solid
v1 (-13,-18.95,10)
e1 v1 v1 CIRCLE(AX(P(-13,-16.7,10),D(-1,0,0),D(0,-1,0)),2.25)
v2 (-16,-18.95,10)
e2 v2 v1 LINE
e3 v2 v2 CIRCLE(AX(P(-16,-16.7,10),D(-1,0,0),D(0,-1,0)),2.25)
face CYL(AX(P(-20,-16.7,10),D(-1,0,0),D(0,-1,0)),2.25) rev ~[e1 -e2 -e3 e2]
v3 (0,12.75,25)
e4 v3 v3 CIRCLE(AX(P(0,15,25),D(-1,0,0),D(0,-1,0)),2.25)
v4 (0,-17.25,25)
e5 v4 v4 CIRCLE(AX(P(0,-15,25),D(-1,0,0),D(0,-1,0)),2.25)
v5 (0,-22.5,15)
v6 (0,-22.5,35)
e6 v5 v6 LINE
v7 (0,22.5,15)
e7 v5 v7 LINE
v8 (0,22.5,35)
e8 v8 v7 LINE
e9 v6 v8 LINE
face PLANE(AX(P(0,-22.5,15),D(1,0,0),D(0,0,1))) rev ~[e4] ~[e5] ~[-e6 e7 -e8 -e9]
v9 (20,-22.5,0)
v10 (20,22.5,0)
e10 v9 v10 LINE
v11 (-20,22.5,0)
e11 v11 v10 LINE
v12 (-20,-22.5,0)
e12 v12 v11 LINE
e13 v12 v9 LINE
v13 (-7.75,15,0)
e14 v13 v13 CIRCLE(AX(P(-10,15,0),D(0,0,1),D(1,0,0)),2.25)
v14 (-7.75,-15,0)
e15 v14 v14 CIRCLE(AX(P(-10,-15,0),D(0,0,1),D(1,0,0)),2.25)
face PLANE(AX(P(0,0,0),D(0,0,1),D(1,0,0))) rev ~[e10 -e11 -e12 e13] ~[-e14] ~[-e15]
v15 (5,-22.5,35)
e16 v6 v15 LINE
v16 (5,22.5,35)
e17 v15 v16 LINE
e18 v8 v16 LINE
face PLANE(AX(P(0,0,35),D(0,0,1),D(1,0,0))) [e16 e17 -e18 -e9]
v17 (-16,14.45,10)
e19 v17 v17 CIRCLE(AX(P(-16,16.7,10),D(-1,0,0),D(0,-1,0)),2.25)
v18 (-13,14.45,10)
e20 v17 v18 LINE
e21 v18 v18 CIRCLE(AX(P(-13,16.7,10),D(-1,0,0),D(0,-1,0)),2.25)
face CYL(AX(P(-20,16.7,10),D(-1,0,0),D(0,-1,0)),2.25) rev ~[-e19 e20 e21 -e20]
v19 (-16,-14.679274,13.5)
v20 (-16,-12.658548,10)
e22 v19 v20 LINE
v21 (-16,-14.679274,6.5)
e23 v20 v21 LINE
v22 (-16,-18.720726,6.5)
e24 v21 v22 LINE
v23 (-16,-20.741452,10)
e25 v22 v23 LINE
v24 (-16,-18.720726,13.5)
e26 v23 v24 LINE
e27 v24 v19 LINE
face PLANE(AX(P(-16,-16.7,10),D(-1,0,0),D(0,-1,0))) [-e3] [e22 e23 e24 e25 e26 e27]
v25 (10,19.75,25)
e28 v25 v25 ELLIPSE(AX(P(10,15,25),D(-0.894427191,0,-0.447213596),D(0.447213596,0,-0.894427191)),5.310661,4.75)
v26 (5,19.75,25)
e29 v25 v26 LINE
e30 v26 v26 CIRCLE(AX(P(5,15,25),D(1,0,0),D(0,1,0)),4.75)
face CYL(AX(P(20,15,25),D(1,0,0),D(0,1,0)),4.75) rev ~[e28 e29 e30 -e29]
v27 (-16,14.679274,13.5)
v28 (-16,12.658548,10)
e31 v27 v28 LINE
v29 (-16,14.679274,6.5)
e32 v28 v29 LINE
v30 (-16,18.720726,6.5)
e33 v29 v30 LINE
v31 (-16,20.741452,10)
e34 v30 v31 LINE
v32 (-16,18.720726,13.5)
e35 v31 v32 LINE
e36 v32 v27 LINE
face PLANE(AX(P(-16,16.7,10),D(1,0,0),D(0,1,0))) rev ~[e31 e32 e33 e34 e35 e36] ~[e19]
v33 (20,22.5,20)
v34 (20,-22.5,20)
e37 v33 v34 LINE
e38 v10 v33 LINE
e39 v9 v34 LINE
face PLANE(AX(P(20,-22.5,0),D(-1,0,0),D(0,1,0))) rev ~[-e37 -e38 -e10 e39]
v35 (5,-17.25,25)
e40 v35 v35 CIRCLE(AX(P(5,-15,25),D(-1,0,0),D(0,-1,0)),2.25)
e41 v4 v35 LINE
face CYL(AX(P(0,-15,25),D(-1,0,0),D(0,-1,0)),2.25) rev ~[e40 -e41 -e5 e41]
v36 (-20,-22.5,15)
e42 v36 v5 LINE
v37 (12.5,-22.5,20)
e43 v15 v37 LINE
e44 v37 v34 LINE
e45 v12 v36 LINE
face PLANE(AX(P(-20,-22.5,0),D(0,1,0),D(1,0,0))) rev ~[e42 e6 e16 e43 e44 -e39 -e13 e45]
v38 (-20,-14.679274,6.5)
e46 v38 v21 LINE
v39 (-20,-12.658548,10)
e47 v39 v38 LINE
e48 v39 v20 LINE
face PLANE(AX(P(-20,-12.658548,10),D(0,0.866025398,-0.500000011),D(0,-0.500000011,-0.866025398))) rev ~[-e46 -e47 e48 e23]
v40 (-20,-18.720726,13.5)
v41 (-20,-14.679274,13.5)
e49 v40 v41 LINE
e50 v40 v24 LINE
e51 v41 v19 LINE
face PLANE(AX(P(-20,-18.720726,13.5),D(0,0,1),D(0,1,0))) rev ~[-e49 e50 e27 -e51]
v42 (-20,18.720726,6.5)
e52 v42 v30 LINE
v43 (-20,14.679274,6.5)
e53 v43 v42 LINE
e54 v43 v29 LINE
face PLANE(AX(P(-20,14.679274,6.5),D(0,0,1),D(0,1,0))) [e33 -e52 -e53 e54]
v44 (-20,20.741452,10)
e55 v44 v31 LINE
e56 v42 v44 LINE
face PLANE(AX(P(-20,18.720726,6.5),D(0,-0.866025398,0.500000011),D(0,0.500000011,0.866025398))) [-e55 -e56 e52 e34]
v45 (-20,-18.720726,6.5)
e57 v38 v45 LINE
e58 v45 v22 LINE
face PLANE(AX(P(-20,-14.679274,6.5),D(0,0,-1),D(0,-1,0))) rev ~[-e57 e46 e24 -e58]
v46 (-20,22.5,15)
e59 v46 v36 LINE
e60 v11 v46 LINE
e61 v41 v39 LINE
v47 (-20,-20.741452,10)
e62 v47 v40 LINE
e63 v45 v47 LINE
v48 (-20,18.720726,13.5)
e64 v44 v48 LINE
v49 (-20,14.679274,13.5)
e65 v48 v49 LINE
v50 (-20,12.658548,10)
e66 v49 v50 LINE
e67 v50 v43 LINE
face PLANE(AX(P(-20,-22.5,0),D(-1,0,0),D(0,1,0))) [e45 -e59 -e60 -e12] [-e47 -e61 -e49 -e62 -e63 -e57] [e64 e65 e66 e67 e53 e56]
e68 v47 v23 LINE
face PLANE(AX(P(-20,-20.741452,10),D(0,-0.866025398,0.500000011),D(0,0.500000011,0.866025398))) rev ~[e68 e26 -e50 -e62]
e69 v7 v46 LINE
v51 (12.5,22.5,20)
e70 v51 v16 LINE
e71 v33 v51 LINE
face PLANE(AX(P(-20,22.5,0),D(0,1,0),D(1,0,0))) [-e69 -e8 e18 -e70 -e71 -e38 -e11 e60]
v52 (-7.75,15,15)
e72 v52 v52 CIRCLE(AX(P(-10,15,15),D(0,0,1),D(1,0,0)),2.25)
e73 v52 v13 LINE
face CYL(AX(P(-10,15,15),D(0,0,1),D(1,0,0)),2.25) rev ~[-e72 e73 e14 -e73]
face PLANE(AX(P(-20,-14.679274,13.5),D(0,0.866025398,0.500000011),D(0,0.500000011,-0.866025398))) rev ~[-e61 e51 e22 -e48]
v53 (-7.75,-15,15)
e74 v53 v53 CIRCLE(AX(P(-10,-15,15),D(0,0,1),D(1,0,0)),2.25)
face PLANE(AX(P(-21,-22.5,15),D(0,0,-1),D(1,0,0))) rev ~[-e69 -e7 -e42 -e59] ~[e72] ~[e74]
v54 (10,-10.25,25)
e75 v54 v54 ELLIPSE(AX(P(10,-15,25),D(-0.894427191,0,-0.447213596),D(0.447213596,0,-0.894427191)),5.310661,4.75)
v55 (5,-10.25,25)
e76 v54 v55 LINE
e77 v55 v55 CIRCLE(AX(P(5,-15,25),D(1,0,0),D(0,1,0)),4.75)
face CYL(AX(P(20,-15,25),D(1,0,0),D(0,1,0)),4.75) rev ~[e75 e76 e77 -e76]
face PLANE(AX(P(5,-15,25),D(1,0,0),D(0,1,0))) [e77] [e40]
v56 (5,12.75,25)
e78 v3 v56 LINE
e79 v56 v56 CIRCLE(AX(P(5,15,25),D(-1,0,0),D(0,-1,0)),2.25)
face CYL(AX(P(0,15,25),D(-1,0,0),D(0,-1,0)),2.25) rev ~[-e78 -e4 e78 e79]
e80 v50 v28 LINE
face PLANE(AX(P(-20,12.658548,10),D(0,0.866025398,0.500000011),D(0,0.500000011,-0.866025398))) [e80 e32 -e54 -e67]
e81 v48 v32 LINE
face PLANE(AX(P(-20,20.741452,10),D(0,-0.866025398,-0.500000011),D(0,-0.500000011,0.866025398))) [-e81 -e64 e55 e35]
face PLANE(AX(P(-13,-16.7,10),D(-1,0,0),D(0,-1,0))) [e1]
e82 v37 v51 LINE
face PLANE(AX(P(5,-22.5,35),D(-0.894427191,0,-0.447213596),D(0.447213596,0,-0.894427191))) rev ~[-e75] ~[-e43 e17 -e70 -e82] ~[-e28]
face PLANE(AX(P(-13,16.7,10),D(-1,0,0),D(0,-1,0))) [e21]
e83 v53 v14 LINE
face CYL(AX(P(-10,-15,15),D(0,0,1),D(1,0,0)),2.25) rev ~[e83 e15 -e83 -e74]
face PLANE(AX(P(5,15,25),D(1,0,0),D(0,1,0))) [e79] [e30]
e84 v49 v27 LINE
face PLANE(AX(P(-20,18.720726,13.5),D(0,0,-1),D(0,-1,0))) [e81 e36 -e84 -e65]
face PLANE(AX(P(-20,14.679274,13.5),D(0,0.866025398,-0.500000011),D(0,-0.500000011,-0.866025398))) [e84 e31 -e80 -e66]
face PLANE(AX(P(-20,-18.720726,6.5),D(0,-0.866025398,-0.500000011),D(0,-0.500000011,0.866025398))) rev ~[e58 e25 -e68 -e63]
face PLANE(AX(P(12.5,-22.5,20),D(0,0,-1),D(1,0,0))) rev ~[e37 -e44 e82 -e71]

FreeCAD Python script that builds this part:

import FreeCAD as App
import Part
import Sketcher
from FreeCAD import Vector
Q = App.Units.Quantity

doc = App.newDocument("Part")
body = doc.addObject("PartDesign::Body", "Body")

sketch1 = body.newObject("Sketcher::SketchObject", "Sketch")
sketch1.AttachmentSupport = (doc.getObject("XY_Plane"), [""])
sketch1.MapMode = "FlatFace"
sketch1.addGeometry(Part.LineSegment(Vector(-20, 22, 0), Vector(-20, -22, 0)), False)
sketch1.addGeometry(Part.LineSegment(Vector(-20, -22, 0), Vector(20, -22, 0)), False)
sketch1.addGeometry(Part.LineSegment(Vector(20, -22, 0), Vector(20, 22, 0)), False)
sketch1.addGeometry(Part.LineSegment(Vector(20, 22, 0), Vector(-20, 22, 0)), False)
sketch1.addConstraint(Sketcher.Constraint("Coincident", 0, 2, 1, 1))
sketch1.addConstraint(Sketcher.Constraint("Coincident", 1, 2, 2, 1))
sketch1.addConstraint(Sketcher.Constraint("Coincident", 2, 2, 3, 1))
sketch1.addConstraint(Sketcher.Constraint("Coincident", 3, 2, 0, 1))
sketch1.addConstraint(Sketcher.Constraint("Vertical", 0))
sketch1.addConstraint(Sketcher.Constraint("Horizontal", 1))
sketch1.addConstraint(Sketcher.Constraint("Vertical", 2))
sketch1.addConstraint(Sketcher.Constraint("Horizontal", 3))
sketch1.addConstraint(Sketcher.Constraint("Symmetric", 0, 2, 2, 2, -1, 1))
sketch1.addConstraint(Sketcher.Constraint("DistanceX", 1, 1, 1, 2, 40.0))
sketch1.addConstraint(Sketcher.Constraint("DistanceY", 0, 2, 0, 1, 45.0))
pad1 = body.newObject("PartDesign::Pad", "Pad")
pad1.Profile = sketch1
pad1.Length = 35

sketch2 = body.newObject("Sketcher::SketchObject", "Sketch001")
sketch2.AttachmentSupport = (doc.getObject("XZ_Plane"), [""])
sketch2.MapMode = "FlatFace"
sketch2.AttachmentOffset = App.Placement(Vector(0, 0, 22.5), App.Rotation())
sketch2.addGeometry(Part.LineSegment(Vector(-21, 15, 0), Vector(0, 15, 0)), False)
sketch2.addGeometry(Part.LineSegment(Vector(0, 15, 0), Vector(0, 35, 0)), False)
sketch2.addGeometry(Part.LineSegment(Vector(0, 35, 0), Vector(5, 35, 0)), False)
sketch2.addGeometry(Part.LineSegment(Vector(5, 35, 0), Vector(12, 20, 0)), False)
sketch2.addGeometry(Part.LineSegment(Vector(12, 20, 0), Vector(21, 20, 0)), False)
sketch2.addGeometry(Part.LineSegment(Vector(21, 20, 0), Vector(21, 36, 0)), False)
sketch2.addGeometry(Part.LineSegment(Vector(21, 36, 0), Vector(-21, 36, 0)), False)
sketch2.addGeometry(Part.LineSegment(Vector(-21, 36, 0), Vector(-21, 15, 0)), False)
sketch2.addConstraint(Sketcher.Constraint("Coincident", 0, 2, 1, 1))
sketch2.addConstraint(Sketcher.Constraint("Coincident", 1, 2, 2, 1))
sketch2.addConstraint(Sketcher.Constraint("Coincident", 2, 2, 3, 1))
sketch2.addConstraint(Sketcher.Constraint("Coincident", 3, 2, 4, 1))
sketch2.addConstraint(Sketcher.Constraint("Coincident", 4, 2, 5, 1))
sketch2.addConstraint(Sketcher.Constraint("Coincident", 5, 2, 6, 1))
sketch2.addConstraint(Sketcher.Constraint("Coincident", 6, 2, 7, 1))
sketch2.addConstraint(Sketcher.Constraint("Coincident", 7, 2, 0, 1))
sketch2.addConstraint(Sketcher.Constraint("Horizontal", 0))
sketch2.addConstraint(Sketcher.Constraint("Vertical", 1))
sketch2.addConstraint(Sketcher.Constraint("Horizontal", 2))
sketch2.addConstraint(Sketcher.Constraint("Horizontal", 4))
sketch2.addConstraint(Sketcher.Constraint("Vertical", 5))
sketch2.addConstraint(Sketcher.Constraint("Horizontal", 6))
sketch2.addConstraint(Sketcher.Constraint("Vertical", 7))
sketch2.addConstraint(Sketcher.Constraint("PointOnObject", 0, 2, -2))
sketch2.addConstraint(Sketcher.Constraint("Equal", 0, 7))
sketch2.addConstraint(Sketcher.Constraint("DistanceX", 0, 1, 0, 2, 21.0))
sketch2.addConstraint(Sketcher.Constraint("DistanceX", 2, 1, 2, 2, 5.0))
sketch2.addConstraint(Sketcher.Constraint("DistanceX", 6, 2, 6, 1, 42.0))
sketch2.addConstraint(Sketcher.Constraint("DistanceY", 1, 1, 1, 2, 20.0))
sketch2.addConstraint(Sketcher.Constraint("DistanceY", 5, 1, 5, 2, 16.0))
sketch2.addConstraint(Sketcher.Constraint("DistanceX", 4, 1, 4, 2, 8.5))
sketch2.addConstraint(Sketcher.Constraint("DistanceY", -1, 1, 0, 2, 15.0))
pocket1 = body.newObject("PartDesign::Pocket", "Pocket")
pocket1.Profile = sketch2
pocket1.Type = "ThroughAll"

sketch3 = body.newObject("Sketcher::SketchObject", "Sketch002")
sketch3.AttachmentSupport = (doc.getObject("XY_Plane"), [""])
sketch3.MapMode = "FlatFace"
sketch3.AttachmentOffset = App.Placement(Vector(0, 0, 15), App.Rotation())
sketch3.addGeometry(Part.Circle(Vector(-10, 15, 0), Vector(0, 0, 1), 2.2), False)
sketch3.addGeometry(Part.Circle(Vector(-10, -15, 0), Vector(0, 0, 1), 2.2), False)
sketch3.addConstraint(Sketcher.Constraint("Equal", 0, 1))
sketch3.addConstraint(Sketcher.Constraint("Symmetric", 0, 3, 1, 3, -1))
sketch3.addConstraint(Sketcher.Constraint("Diameter", 0, 4.5))
sketch3.addConstraint(Sketcher.Constraint("DistanceX", 0, 3, -1, 1, 10.0))
sketch3.addConstraint(Sketcher.Constraint("DistanceY", -1, 1, 0, 3, 15.0))
pocket2 = body.newObject("PartDesign::Pocket", "Pocket001")
pocket2.Profile = sketch3
pocket2.Type = "ThroughAll"

sketch4 = body.newObject("Sketcher::SketchObject", "Sketch003")
sketch4.AttachmentSupport = (doc.getObject("YZ_Plane"), [""])
sketch4.MapMode = "FlatFace"
sketch4.addGeometry(Part.Circle(Vector(15, 25, 0), Vector(0, 0, 1), 2.2), False)
sketch4.addGeometry(Part.Circle(Vector(-15, 25, 0), Vector(0, 0, 1), 2.2), False)
sketch4.addConstraint(Sketcher.Constraint("Equal", 0, 1))
sketch4.addConstraint(Sketcher.Constraint("Symmetric", 0, 3, 1, 3, -2))
sketch4.addConstraint(Sketcher.Constraint("Diameter", 0, 4.5))
sketch4.addConstraint(Sketcher.Constraint("DistanceX", -1, 1, 0, 3, 15.0))
sketch4.addConstraint(Sketcher.Constraint("DistanceY", -1, 1, 0, 3, 25.0))
pocket3 = body.newObject("PartDesign::Pocket", "Pocket002")
pocket3.Profile = sketch4
pocket3.Type = "ThroughAll"
pocket3.Reversed = True

sketch5 = body.newObject("Sketcher::SketchObject", "Sketch004")
sketch5.AttachmentSupport = (doc.getObject("YZ_Plane"), [""])
sketch5.MapMode = "FlatFace"
sketch5.AttachmentOffset = App.Placement(Vector(0, 0, 20), App.Rotation())
sketch5.addGeometry(Part.Circle(Vector(-15, 25, 0), Vector(0, 0, 1), 4.8), False)
sketch5.addGeometry(Part.Circle(Vector(15, 25, 0), Vector(0, 0, 1), 4.8), False)
sketch5.addConstraint(Sketcher.Constraint("Equal", 0, 1))
sketch5.addConstraint(Sketcher.Constraint("Symmetric", 0, 3, 1, 3, -2))
sketch5.addConstraint(Sketcher.Constraint("Diameter", 0, 9.5))
sketch5.addConstraint(Sketcher.Constraint("DistanceX", 0, 3, -1, 1, 15.0))
sketch5.addConstraint(Sketcher.Constraint("DistanceY", -1, 1, 0, 3, 25.0))
pocket4 = body.newObject("PartDesign::Pocket", "Pocket003")
pocket4.Profile = sketch5
pocket4.Length = 15

sketch6 = body.newObject("Sketcher::SketchObject", "Sketch005")
sketch6.AttachmentSupport = (doc.getObject("YZ_Plane"), [""])
sketch6.MapMode = "FlatFace"
sketch6.AttachmentOffset = App.Placement(Vector(0, 0, -20), App.Rotation())
sketch6.addGeometry(Part.LineSegment(Vector(14.7, 13.5, 0), Vector(18.7, 13.5, 0)), False)
sketch6.addGeometry(Part.LineSegment(Vector(18.7, 13.5, 0), Vector(20.7, 10, 0)), False)
sketch6.addGeometry(Part.LineSegment(Vector(20.7, 10, 0), Vector(18.7, 6.5, 0)), False)
sketch6.addGeometry(Part.LineSegment(Vector(18.7, 6.5, 0), Vector(14.7, 6.5, 0)), False)
sketch6.addGeometry(Part.LineSegment(Vector(14.7, 6.5, 0), Vector(12.7, 10, 0)), False)
sketch6.addGeometry(Part.LineSegment(Vector(12.7, 10, 0), Vector(14.7, 13.5, 0)), False)
sketch6.addGeometry(Part.LineSegment(Vector(-12.7, 10, 0), Vector(-14.7, 6.5, 0)), False)
sketch6.addGeometry(Part.LineSegment(Vector(-14.7, 6.5, 0), Vector(-18.7, 6.5, 0)), False)
sketch6.addGeometry(Part.LineSegment(Vector(-18.7, 6.5, 0), Vector(-20.7, 10, 0)), False)
sketch6.addGeometry(Part.LineSegment(Vector(-20.7, 10, 0), Vector(-18.7, 13.5, 0)), False)
sketch6.addGeometry(Part.LineSegment(Vector(-18.7, 13.5, 0), Vector(-14.7, 13.5, 0)), False)
sketch6.addGeometry(Part.LineSegment(Vector(-14.7, 13.5, 0), Vector(-12.7, 10, 0)), False)
sketch6.addConstraint(Sketcher.Constraint("Coincident", 0, 2, 1, 1))
sketch6.addConstraint(Sketcher.Constraint("Coincident", 1, 2, 2, 1))
sketch6.addConstraint(Sketcher.Constraint("Coincident", 2, 2, 3, 1))
sketch6.addConstraint(Sketcher.Constraint("Coincident", 3, 2, 4, 1))
sketch6.addConstraint(Sketcher.Constraint("Coincident", 4, 2, 5, 1))
sketch6.addConstraint(Sketcher.Constraint("Coincident", 5, 2, 0, 1))
sketch6.addConstraint(Sketcher.Constraint("Coincident", 6, 2, 7, 1))
sketch6.addConstraint(Sketcher.Constraint("Coincident", 7, 2, 8, 1))
sketch6.addConstraint(Sketcher.Constraint("Coincident", 8, 2, 9, 1))
sketch6.addConstraint(Sketcher.Constraint("Coincident", 9, 2, 10, 1))
sketch6.addConstraint(Sketcher.Constraint("Coincident", 10, 2, 11, 1))
sketch6.addConstraint(Sketcher.Constraint("Coincident", 11, 2, 6, 1))
sketch6.addConstraint(Sketcher.Constraint("Horizontal", 0))
sketch6.addConstraint(Sketcher.Constraint("Horizontal", 3))
sketch6.addConstraint(Sketcher.Constraint("Horizontal", 7))
sketch6.addConstraint(Sketcher.Constraint("Horizontal", 10))
sketch6.addConstraint(Sketcher.Constraint("Symmetric", 3, 2, 6, 2, -2))
sketch6.addConstraint(Sketcher.Constraint("Symmetric", 1, 2, 8, 2, -2))
sketch6.addConstraint(Sketcher.Constraint("Symmetric", 0, 2, 9, 2, -2))
sketch6.addConstraint(Sketcher.Constraint("Symmetric", 4, 2, 11, 2, -2))
sketch6.addConstraint(Sketcher.Constraint("Parallel", 1, 4))
sketch6.addConstraint(Sketcher.Constraint("Parallel", 2, 5))
sketch6.addConstraint(Sketcher.Constraint("Parallel", 5, 6))
sketch6.addConstraint(Sketcher.Constraint("Parallel", 4, 8))
sketch6.addConstraint(Sketcher.Constraint("Parallel", 8, 11))
sketch6.addConstraint(Sketcher.Constraint("Horizontal", 1, 2, 4, 2))
sketch6.addConstraint(Sketcher.Constraint("Vertical", 0, 2, 2, 2))
sketch6.addConstraint(Sketcher.Constraint("Angle", 1, Q("-59.999999 deg")))
sketch6.addConstraint(Sketcher.Constraint("DistanceY", -1, 1, 1, 2, 10.0))
sketch6.addConstraint(Sketcher.Constraint("DistanceY", 2, 2, 0, 2, 7.0))
sketch6.addConstraint(Sketcher.Constraint("DistanceX", 6, 2, 2, 2, 33.4))
sketch6.addConstraint(Sketcher.Constraint("DistanceX", 0, 1, 0, 2, 4.041452))
pocket5 = body.newObject("PartDesign::Pocket", "Pocket004")
pocket5.Profile = sketch6
pocket5.Length = 4
pocket5.Reversed = True

sketch7 = body.newObject("Sketcher::SketchObject", "Sketch006")
sketch7.AttachmentSupport = (doc.getObject("YZ_Plane"), [""])
sketch7.MapMode = "FlatFace"
sketch7.AttachmentOffset = App.Placement(Vector(0, 0, -20), App.Rotation())
sketch7.addGeometry(Part.Circle(Vector(16.7, 10, 0), Vector(0, 0, 1), 2.2), False)
sketch7.addGeometry(Part.Circle(Vector(-16.7, 10, 0), Vector(0, 0, 1), 2.2), False)
sketch7.addConstraint(Sketcher.Constraint("Equal", 0, 1))
sketch7.addConstraint(Sketcher.Constraint("Symmetric", 0, 3, 1, 3, -2))
sketch7.addConstraint(Sketcher.Constraint("Diameter", 0, 4.5))
sketch7.addConstraint(Sketcher.Constraint("DistanceY", -1, 1, 0, 3, 10.0))
sketch7.addConstraint(Sketcher.Constraint("DistanceX", -1, 1, 0, 3, 16.7))
pocket6 = body.newObject("PartDesign::Pocket", "Pocket005")
pocket6.Profile = sketch7
pocket6.Length = 7
pocket6.Reversed = True

doc.recompute()
